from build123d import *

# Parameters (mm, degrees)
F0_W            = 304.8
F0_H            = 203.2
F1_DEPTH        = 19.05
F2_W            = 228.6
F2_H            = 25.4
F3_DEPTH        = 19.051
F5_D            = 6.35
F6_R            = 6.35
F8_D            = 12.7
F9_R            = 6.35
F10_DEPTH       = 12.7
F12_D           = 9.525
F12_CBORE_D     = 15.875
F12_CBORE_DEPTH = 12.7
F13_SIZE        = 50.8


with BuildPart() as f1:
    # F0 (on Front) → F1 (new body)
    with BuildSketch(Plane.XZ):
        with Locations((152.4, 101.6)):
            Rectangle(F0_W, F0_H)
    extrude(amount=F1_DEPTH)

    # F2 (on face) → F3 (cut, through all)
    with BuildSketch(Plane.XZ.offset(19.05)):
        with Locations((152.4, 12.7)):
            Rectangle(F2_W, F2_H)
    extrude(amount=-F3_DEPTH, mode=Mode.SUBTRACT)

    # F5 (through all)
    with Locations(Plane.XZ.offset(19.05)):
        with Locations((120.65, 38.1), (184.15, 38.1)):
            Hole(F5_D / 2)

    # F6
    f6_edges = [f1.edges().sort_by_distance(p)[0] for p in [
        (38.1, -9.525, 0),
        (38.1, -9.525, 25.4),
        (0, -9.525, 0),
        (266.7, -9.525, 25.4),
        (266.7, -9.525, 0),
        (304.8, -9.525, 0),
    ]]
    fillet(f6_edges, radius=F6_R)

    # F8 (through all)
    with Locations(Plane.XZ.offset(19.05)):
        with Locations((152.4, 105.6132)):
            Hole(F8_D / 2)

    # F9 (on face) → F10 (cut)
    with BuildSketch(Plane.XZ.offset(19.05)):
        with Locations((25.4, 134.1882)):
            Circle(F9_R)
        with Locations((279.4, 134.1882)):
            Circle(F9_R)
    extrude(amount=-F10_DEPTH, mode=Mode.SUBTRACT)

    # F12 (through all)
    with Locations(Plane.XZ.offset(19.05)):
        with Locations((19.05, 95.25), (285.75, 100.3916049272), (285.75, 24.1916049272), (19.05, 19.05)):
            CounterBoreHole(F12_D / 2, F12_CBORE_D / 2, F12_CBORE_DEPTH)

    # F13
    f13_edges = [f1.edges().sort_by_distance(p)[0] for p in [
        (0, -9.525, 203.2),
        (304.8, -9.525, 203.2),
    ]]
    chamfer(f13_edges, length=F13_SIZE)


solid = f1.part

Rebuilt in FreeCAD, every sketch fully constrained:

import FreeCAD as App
import Part
import Sketcher

V = App.Vector
Q = App.Units.Quantity


def edges_at(feature, points):
    """Names of the edges that pass closest to the given points."""
    edges = feature.Shape.Edges
    near = lambda p: min(range(len(edges)), key=lambda i: edges[i].distToShape(Part.Vertex(*p))[0])
    return sorted({f"Edge{near(p) + 1}" for p in points})


def add_polygon(sketch, points):
    """Adds a closed chain of lines whose ends are joined by coincident constraints."""
    first, n = sketch.GeometryCount, len(points)
    for a, b in zip(points, points[1:] + points[:1]):
        sketch.addGeometry(Part.LineSegment(App.Vector(*a, 0), App.Vector(*b, 0)), False)
    for i in range(n):
        sketch.addConstraint(Sketcher.Constraint("Coincident", first + i, 2, first + (i + 1) % n, 1))

doc = App.newDocument("Part")
params = doc.addObject("Spreadsheet::Sheet", "Params")
for row, (alias, value) in enumerate([
    ("sketch1_width", "12 in"),
    ("sketch1_height", "8 in"),
    ("pad1_length", "0.75 in"),
    ("sketch2_width", "9 in"),
    ("sketch2_height", "1 in"),
    ("sketch3_diameter", "0.25 in"),
    ("hole_diameter", "0.25 in"),
    ("fillet_radius", "0.25 in"),
    ("sketch4_diameter", "0.5 in"),
    ("hole2_diameter", "0.5 in"),
    ("sketch5_diameter", "0.5 in"),
    ("pocket2_length", "0.5 in"),
    ("sketch6_diameter", "0.375 in"),
    ("hole3_diameter", "0.375 in"),
    ("hole3_cbore_diameter", "0.625 in"),
    ("hole3_cbore_depth", "0.5 in"),
    ("chamfer_size", "2 in"),
], start=1):
    params.set(f"A{row}", alias)
    params.set(f"B{row}", "=" + value)
    params.setAlias(f"B{row}", alias)

body = doc.addObject("PartDesign::Body", "Body")

# Sketch on XZ plane
sketch1 = body.newObject("Sketcher::SketchObject", "Sketch")
sketch1.AttachmentSupport = (doc.getObject("XZ_Plane"), [""])
sketch1.MapMode = "FlatFace"
add_polygon(sketch1, [(0, 203.2), (0, 0), (304.8, 0), (304.8, 203.2)])  # lines 0-3
sketch1.addConstraint([
    Sketcher.Constraint("Vertical", 0),
    Sketcher.Constraint("Horizontal", 1),
    Sketcher.Constraint("Vertical", 2),
    Sketcher.Constraint("Horizontal", 3),
    Sketcher.Constraint("Coincident", 0, 2, -1, 1),
    Sketcher.Constraint("DistanceX", 1, 1, 1, 2, Q("12 in")),
    Sketcher.Constraint("DistanceY", 0, 2, 0, 1, Q("8 in")),
])
sketch1.setExpression("Constraints[9]", "Params.sketch1_width")
sketch1.setExpression("Constraints[10]", "Params.sketch1_height")
pad1 = body.newObject("PartDesign::Pad", "Pad")
pad1.Profile = sketch1
pad1.setExpression("Length", "Params.pad1_length")

# Sketch on XZ plane
sketch2 = body.newObject("Sketcher::SketchObject", "Sketch001")
sketch2.AttachmentSupport = (doc.getObject("XZ_Plane"), [""])
sketch2.MapMode = "FlatFace"
sketch2.AttachmentOffset = App.Placement(V(0, 0, 0.75 * 25.4), App.Rotation())
add_polygon(sketch2, [(38.1, 25.4), (38.1, 0), (266.7, 0), (266.7, 25.4)])  # lines 0-3
sketch2.addConstraint([
    Sketcher.Constraint("Vertical", 0),
    Sketcher.Constraint("Horizontal", 1),
    Sketcher.Constraint("Vertical", 2),
    Sketcher.Constraint("Horizontal", 3),
    Sketcher.Constraint("PointOnObject", 0, 2, -1),
    Sketcher.Constraint("DistanceX", 1, 1, 1, 2, Q("9 in")),
    Sketcher.Constraint("DistanceY", 0, 2, 0, 1, Q("1 in")),
    Sketcher.Constraint("DistanceX", -1, 1, 0, 2, Q("1.5 in")),
])
sketch2.setExpression("Constraints[9]", "Params.sketch2_width")
sketch2.setExpression("Constraints[10]", "Params.sketch2_height")
pocket1 = body.newObject("PartDesign::Pocket", "Pocket")
pocket1.Profile = sketch2
pocket1.Type = "ThroughAll"

# Sketch on XZ plane
sketch3 = body.newObject("Sketcher::SketchObject", "Sketch002")
sketch3.AttachmentSupport = (doc.getObject("XZ_Plane"), [""])
sketch3.MapMode = "FlatFace"
sketch3.AttachmentOffset = App.Placement(V(0, 0, 0.75 * 25.4), App.Rotation())
sketch3.addGeometry([
    Part.Circle(V(120.65, 38.1, 0), V(0, 0, 1), 3.175),
    Part.Circle(V(184.15, 38.1, 0), V(0, 0, 1), 3.175),
], False)
sketch3.addConstraint([
    Sketcher.Constraint("Equal", 0, 1),
    Sketcher.Constraint("Horizontal", 0, 3, 1, 3),
    Sketcher.Constraint("Diameter", 0, Q("0.25 in")),
    Sketcher.Constraint("DistanceY", -1, 1, 0, 3, Q("1.5 in")),
    Sketcher.Constraint("DistanceX", 0, 3, 1, 3, Q("2.5 in")),
    Sketcher.Constraint("DistanceX", -1, 1, 0, 3, Q("4.75 in")),
])
sketch3.setExpression("Constraints[2]", "Params.sketch3_diameter")
doc.recompute()
hole = body.newObject("PartDesign::Hole", "Hole")
hole.Profile = sketch3
hole.ThreadType = "None"
hole.setExpression("Diameter", "Params.hole_diameter")
hole.DepthType = "ThroughAll"
doc.recompute()

fillet = body.newObject("PartDesign::Fillet", "Fillet")
fillet.Base = (hole, edges_at(hole, [
    (38.1, -9.525, 0),
    (38.1, -9.525, 25.4),
    (0, -9.525, 0),
    (266.7, -9.525, 25.4),
    (266.7, -9.525, 0),
    (304.8, -9.525, 0),
]))
fillet.setExpression("Radius", "Params.fillet_radius")

# Sketch on XZ plane
sketch4 = body.newObject("Sketcher::SketchObject", "Sketch003")
sketch4.AttachmentSupport = (doc.getObject("XZ_Plane"), [""])
sketch4.MapMode = "FlatFace"
sketch4.AttachmentOffset = App.Placement(V(0, 0, 0.75 * 25.4), App.Rotation())
sketch4.addGeometry(Part.Circle(V(152.4, 105.6132, 0), V(0, 0, 1), 6.35), False)
sketch4.addConstraint([
    Sketcher.Constraint("Diameter", 0, Q("0.5 in")),
    Sketcher.Constraint("DistanceX", -1, 1, 0, 3, Q("6 in")),
    Sketcher.Constraint("DistanceY", -1, 1, 0, 3, Q("4.158 in")),
])
sketch4.setExpression("Constraints[0]", "Params.sketch4_diameter")
doc.recompute()
hole2 = body.newObject("PartDesign::Hole", "Hole001")
hole2.Profile = sketch4
hole2.ThreadType = "None"
hole2.setExpression("Diameter", "Params.hole2_diameter")
hole2.DepthType = "ThroughAll"

# Sketch on XZ plane
sketch5 = body.newObject("Sketcher::SketchObject", "Sketch004")
sketch5.AttachmentSupport = (doc.getObject("XZ_Plane"), [""])
sketch5.MapMode = "FlatFace"
sketch5.AttachmentOffset = App.Placement(V(0, 0, 0.75 * 25.4), App.Rotation())
sketch5.addGeometry([
    Part.Circle(V(25.4, 134.1882, 0), V(0, 0, 1), 6.35),
    Part.Circle(V(279.4, 134.1882, 0), V(0, 0, 1), 6.35),
], False)
sketch5.addConstraint([
    Sketcher.Constraint("Equal", 0, 1),
    Sketcher.Constraint("Horizontal", 0, 3, 1, 3),
    Sketcher.Constraint("Diameter", 0, Q("0.5 in")),
    Sketcher.Constraint("DistanceX", -1, 1, 0, 3, Q("1 in")),
    Sketcher.Constraint("DistanceX", -1, 1, 1, 3, Q("11 in")),
    Sketcher.Constraint("DistanceY", -1, 1, 0, 3, Q("5.283 in")),
])
sketch5.setExpression("Constraints[2]", "Params.sketch5_diameter")
pocket2 = body.newObject("PartDesign::Pocket", "Pocket001")
pocket2.Profile = sketch5
pocket2.setExpression("Length", "Params.pocket2_length")

# Sketch on XZ plane
sketch6 = body.newObject("Sketcher::SketchObject", "Sketch005")
sketch6.AttachmentSupport = (doc.getObject("XZ_Plane"), [""])
sketch6.MapMode = "FlatFace"
sketch6.AttachmentOffset = App.Placement(V(0, 0, 0.75 * 25.4), App.Rotation())
sketch6.addGeometry([
    Part.Circle(V(19.05, 95.25, 0), V(0, 0, 1), 4.7625),
    Part.Circle(V(285.75, 100.391605, 0), V(0, 0, 1), 4.7625),
    Part.Circle(V(285.75, 24.191605, 0), V(0, 0, 1), 4.7625),
    Part.Circle(V(19.05, 19.05, 0), V(0, 0, 1), 4.7625),
], False)
sketch6.addConstraint([
    Sketcher.Constraint("Equal", 0, 1),
    Sketcher.Constraint("Equal", 1, 2),
    Sketcher.Constraint("Equal", 2, 3),
    Sketcher.Constraint("Vertical", 1, 3, 2, 3),
    Sketcher.Constraint("Vertical", 0, 3, 3, 3),
    Sketcher.Constraint("Diameter", 0, Q("0.375 in")),
    Sketcher.Constraint("DistanceY", 2, 3, 1, 3, Q("3 in")),
    Sketcher.Constraint("DistanceY", 3, 3, 0, 3, Q("3 in")),
    Sketcher.Constraint("DistanceX", 0, 3, 1, 3, Q("10.5 in")),
    Sketcher.Constraint("DistanceX", -1, 1, 0, 3, Q("0.75 in")),
    Sketcher.Constraint("DistanceY", -1, 1, 0, 3, Q("3.75 in")),
    Sketcher.Constraint("DistanceY", -1, 1, 1, 3, 100.391605),
])
sketch6.setExpression("Constraints[5]", "Params.sketch6_diameter")
doc.recompute()
hole3 = body.newObject("PartDesign::Hole", "Hole002")
hole3.Profile = sketch6
hole3.ThreadType = "None"
hole3.setExpression("Diameter", "Params.hole3_diameter")
hole3.DepthType = "ThroughAll"
hole3.HoleCutType = "Counterbore"
hole3.setExpression("HoleCutDiameter", "Params.hole3_cbore_diameter")
hole3.setExpression("HoleCutDepth", "Params.hole3_cbore_depth")
doc.recompute()

chamfer = body.newObject("PartDesign::Chamfer", "Chamfer")
chamfer.Base = (hole3, edges_at(hole3, [(0, -9.525, 203.2), (304.8, -9.525, 203.2)]))
chamfer.setExpression("Size", "Params.chamfer_size")

doc.recompute()
